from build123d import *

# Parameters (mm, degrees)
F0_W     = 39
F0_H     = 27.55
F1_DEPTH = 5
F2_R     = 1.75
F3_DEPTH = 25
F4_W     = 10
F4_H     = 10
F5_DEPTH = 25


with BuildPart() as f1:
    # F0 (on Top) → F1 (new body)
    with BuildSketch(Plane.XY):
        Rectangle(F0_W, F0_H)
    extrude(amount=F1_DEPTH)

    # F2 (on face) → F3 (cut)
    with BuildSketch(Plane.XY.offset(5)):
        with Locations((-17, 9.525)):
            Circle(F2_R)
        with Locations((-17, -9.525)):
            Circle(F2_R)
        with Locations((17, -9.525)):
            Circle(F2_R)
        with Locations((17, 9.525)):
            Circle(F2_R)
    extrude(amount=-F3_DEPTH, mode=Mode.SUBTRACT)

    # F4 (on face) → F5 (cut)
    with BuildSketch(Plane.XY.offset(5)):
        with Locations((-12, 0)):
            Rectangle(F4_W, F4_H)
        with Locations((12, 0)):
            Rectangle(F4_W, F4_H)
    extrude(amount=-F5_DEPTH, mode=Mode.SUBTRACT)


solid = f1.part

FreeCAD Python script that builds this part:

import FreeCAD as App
import Part
import Sketcher
Q = App.Units.Quantity


def add_polygon(sketch, points):
    """Adds a closed chain of lines whose ends are joined by coincident constraints."""
    first, n = sketch.GeometryCount, len(points)
    for a, b in zip(points, points[1:] + points[:1]):
        sketch.addGeometry(Part.LineSegment(App.Vector(*a, 0), App.Vector(*b, 0)), False)
    for i in range(n):
        sketch.addConstraint(Sketcher.Constraint("Coincident", first + i, 2, first + (i + 1) % n, 1))

doc = App.newDocument("Part")
body = doc.addObject("PartDesign::Body", "Body")

# Sketch on XY plane
sketch1 = body.newObject("Sketcher::SketchObject", "Sketch")
sketch1.AttachmentSupport = (doc.getObject("XY_Plane"), [""])
sketch1.MapMode = "FlatFace"
add_polygon(sketch1, [(-20, 14), (-20, -14), (20, -14), (20, 14)])  # lines 0-3
sketch1.addConstraint([
    Sketcher.Constraint("Vertical", 0),
    Sketcher.Constraint("Horizontal", 1),
    Sketcher.Constraint("Vertical", 2),
    Sketcher.Constraint("Horizontal", 3),
    Sketcher.Constraint("Symmetric", 0, 2, 2, 2, -1, 1),
    Sketcher.Constraint("DistanceX", 1, 1, 1, 2, Q("39 mm")),
    Sketcher.Constraint("DistanceY", 0, 2, 0, 1, Q("27.55 mm")),
])
pad1 = body.newObject("PartDesign::Pad", "Pad")
pad1.Profile = sketch1
pad1.Length = 5

# Sketch on XY plane
sketch2 = body.newObject("Sketcher::SketchObject", "Sketch001")
sketch2.AttachmentSupport = (doc.getObject("XY_Plane"), [""])
sketch2.MapMode = "FlatFace"
sketch2.AttachmentOffset = App.Placement(App.Vector(0, 0, 5), App.Rotation())
sketch2.addGeometry([
    Part.Circle(App.Vector(-17, 9.5, 0), App.Vector(0, 0, 1), 1.8),
    Part.Circle(App.Vector(-17, -9.5, 0), App.Vector(0, 0, 1), 1.8),
    Part.Circle(App.Vector(17, -9.5, 0), App.Vector(0, 0, 1), 1.8),
    Part.Circle(App.Vector(17, 9.5, 0), App.Vector(0, 0, 1), 1.8),
], False)
sketch2.addConstraint([
    Sketcher.Constraint("Equal", 0, 1),
    Sketcher.Constraint("Equal", 1, 2),
    Sketcher.Constraint("Equal", 2, 3),
    Sketcher.Constraint("Symmetric", 0, 3, 2, 3, -1, 1),
    Sketcher.Constraint("Symmetric", 1, 3, 3, 3, -1, 1),
    Sketcher.Constraint("Symmetric", 1, 3, 2, 3, -2),
    Sketcher.Constraint("Diameter", 0, Q("3.5 mm")),
    Sketcher.Constraint("DistanceX", 0, 3, -1, 1, Q("17 mm")),
    Sketcher.Constraint("DistanceY", 1, 3, 0, 3, Q("19.05 mm")),
])
pocket1 = body.newObject("PartDesign::Pocket", "Pocket")
pocket1.Profile = sketch2
pocket1.Length = 25

# Sketch on XY plane
sketch3 = body.newObject("Sketcher::SketchObject", "Sketch002")
sketch3.AttachmentSupport = (doc.getObject("XY_Plane"), [""])
sketch3.MapMode = "FlatFace"
sketch3.AttachmentOffset = App.Placement(App.Vector(0, 0, 5), App.Rotation())
add_polygon(sketch3, [(-17, 5), (-17, -5), (-7, -5), (-7, 5)])  # lines 0-3
add_polygon(sketch3, [(7, 5), (7, -5), (17, -5), (17, 5)])  # lines 4-7
sketch3.addConstraint([
    Sketcher.Constraint("Vertical", 0),
    Sketcher.Constraint("Horizontal", 1),
    Sketcher.Constraint("Vertical", 2),
    Sketcher.Constraint("Horizontal", 3),
    Sketcher.Constraint("Vertical", 4),
    Sketcher.Constraint("Horizontal", 5),
    Sketcher.Constraint("Vertical", 6),
    Sketcher.Constraint("Horizontal", 7),
    Sketcher.Constraint("Symmetric", 2, 2, 4, 2, -1, 1),
    Sketcher.Constraint("Symmetric", 0, 2, 6, 2, -1, 1),
    Sketcher.Constraint("Horizontal", 1, 2, 4, 2),
    Sketcher.Constraint("Equal", 7, 0),
    Sketcher.Constraint("DistanceX", 1, 1, 1, 2, Q("10 mm")),
    Sketcher.Constraint("DistanceX", 0, 2, -1, 1, Q("17 mm")),
])
pocket2 = body.newObject("PartDesign::Pocket", "Pocket001")
pocket2.Profile = sketch3
pocket2.Length = 25

doc.recompute()
